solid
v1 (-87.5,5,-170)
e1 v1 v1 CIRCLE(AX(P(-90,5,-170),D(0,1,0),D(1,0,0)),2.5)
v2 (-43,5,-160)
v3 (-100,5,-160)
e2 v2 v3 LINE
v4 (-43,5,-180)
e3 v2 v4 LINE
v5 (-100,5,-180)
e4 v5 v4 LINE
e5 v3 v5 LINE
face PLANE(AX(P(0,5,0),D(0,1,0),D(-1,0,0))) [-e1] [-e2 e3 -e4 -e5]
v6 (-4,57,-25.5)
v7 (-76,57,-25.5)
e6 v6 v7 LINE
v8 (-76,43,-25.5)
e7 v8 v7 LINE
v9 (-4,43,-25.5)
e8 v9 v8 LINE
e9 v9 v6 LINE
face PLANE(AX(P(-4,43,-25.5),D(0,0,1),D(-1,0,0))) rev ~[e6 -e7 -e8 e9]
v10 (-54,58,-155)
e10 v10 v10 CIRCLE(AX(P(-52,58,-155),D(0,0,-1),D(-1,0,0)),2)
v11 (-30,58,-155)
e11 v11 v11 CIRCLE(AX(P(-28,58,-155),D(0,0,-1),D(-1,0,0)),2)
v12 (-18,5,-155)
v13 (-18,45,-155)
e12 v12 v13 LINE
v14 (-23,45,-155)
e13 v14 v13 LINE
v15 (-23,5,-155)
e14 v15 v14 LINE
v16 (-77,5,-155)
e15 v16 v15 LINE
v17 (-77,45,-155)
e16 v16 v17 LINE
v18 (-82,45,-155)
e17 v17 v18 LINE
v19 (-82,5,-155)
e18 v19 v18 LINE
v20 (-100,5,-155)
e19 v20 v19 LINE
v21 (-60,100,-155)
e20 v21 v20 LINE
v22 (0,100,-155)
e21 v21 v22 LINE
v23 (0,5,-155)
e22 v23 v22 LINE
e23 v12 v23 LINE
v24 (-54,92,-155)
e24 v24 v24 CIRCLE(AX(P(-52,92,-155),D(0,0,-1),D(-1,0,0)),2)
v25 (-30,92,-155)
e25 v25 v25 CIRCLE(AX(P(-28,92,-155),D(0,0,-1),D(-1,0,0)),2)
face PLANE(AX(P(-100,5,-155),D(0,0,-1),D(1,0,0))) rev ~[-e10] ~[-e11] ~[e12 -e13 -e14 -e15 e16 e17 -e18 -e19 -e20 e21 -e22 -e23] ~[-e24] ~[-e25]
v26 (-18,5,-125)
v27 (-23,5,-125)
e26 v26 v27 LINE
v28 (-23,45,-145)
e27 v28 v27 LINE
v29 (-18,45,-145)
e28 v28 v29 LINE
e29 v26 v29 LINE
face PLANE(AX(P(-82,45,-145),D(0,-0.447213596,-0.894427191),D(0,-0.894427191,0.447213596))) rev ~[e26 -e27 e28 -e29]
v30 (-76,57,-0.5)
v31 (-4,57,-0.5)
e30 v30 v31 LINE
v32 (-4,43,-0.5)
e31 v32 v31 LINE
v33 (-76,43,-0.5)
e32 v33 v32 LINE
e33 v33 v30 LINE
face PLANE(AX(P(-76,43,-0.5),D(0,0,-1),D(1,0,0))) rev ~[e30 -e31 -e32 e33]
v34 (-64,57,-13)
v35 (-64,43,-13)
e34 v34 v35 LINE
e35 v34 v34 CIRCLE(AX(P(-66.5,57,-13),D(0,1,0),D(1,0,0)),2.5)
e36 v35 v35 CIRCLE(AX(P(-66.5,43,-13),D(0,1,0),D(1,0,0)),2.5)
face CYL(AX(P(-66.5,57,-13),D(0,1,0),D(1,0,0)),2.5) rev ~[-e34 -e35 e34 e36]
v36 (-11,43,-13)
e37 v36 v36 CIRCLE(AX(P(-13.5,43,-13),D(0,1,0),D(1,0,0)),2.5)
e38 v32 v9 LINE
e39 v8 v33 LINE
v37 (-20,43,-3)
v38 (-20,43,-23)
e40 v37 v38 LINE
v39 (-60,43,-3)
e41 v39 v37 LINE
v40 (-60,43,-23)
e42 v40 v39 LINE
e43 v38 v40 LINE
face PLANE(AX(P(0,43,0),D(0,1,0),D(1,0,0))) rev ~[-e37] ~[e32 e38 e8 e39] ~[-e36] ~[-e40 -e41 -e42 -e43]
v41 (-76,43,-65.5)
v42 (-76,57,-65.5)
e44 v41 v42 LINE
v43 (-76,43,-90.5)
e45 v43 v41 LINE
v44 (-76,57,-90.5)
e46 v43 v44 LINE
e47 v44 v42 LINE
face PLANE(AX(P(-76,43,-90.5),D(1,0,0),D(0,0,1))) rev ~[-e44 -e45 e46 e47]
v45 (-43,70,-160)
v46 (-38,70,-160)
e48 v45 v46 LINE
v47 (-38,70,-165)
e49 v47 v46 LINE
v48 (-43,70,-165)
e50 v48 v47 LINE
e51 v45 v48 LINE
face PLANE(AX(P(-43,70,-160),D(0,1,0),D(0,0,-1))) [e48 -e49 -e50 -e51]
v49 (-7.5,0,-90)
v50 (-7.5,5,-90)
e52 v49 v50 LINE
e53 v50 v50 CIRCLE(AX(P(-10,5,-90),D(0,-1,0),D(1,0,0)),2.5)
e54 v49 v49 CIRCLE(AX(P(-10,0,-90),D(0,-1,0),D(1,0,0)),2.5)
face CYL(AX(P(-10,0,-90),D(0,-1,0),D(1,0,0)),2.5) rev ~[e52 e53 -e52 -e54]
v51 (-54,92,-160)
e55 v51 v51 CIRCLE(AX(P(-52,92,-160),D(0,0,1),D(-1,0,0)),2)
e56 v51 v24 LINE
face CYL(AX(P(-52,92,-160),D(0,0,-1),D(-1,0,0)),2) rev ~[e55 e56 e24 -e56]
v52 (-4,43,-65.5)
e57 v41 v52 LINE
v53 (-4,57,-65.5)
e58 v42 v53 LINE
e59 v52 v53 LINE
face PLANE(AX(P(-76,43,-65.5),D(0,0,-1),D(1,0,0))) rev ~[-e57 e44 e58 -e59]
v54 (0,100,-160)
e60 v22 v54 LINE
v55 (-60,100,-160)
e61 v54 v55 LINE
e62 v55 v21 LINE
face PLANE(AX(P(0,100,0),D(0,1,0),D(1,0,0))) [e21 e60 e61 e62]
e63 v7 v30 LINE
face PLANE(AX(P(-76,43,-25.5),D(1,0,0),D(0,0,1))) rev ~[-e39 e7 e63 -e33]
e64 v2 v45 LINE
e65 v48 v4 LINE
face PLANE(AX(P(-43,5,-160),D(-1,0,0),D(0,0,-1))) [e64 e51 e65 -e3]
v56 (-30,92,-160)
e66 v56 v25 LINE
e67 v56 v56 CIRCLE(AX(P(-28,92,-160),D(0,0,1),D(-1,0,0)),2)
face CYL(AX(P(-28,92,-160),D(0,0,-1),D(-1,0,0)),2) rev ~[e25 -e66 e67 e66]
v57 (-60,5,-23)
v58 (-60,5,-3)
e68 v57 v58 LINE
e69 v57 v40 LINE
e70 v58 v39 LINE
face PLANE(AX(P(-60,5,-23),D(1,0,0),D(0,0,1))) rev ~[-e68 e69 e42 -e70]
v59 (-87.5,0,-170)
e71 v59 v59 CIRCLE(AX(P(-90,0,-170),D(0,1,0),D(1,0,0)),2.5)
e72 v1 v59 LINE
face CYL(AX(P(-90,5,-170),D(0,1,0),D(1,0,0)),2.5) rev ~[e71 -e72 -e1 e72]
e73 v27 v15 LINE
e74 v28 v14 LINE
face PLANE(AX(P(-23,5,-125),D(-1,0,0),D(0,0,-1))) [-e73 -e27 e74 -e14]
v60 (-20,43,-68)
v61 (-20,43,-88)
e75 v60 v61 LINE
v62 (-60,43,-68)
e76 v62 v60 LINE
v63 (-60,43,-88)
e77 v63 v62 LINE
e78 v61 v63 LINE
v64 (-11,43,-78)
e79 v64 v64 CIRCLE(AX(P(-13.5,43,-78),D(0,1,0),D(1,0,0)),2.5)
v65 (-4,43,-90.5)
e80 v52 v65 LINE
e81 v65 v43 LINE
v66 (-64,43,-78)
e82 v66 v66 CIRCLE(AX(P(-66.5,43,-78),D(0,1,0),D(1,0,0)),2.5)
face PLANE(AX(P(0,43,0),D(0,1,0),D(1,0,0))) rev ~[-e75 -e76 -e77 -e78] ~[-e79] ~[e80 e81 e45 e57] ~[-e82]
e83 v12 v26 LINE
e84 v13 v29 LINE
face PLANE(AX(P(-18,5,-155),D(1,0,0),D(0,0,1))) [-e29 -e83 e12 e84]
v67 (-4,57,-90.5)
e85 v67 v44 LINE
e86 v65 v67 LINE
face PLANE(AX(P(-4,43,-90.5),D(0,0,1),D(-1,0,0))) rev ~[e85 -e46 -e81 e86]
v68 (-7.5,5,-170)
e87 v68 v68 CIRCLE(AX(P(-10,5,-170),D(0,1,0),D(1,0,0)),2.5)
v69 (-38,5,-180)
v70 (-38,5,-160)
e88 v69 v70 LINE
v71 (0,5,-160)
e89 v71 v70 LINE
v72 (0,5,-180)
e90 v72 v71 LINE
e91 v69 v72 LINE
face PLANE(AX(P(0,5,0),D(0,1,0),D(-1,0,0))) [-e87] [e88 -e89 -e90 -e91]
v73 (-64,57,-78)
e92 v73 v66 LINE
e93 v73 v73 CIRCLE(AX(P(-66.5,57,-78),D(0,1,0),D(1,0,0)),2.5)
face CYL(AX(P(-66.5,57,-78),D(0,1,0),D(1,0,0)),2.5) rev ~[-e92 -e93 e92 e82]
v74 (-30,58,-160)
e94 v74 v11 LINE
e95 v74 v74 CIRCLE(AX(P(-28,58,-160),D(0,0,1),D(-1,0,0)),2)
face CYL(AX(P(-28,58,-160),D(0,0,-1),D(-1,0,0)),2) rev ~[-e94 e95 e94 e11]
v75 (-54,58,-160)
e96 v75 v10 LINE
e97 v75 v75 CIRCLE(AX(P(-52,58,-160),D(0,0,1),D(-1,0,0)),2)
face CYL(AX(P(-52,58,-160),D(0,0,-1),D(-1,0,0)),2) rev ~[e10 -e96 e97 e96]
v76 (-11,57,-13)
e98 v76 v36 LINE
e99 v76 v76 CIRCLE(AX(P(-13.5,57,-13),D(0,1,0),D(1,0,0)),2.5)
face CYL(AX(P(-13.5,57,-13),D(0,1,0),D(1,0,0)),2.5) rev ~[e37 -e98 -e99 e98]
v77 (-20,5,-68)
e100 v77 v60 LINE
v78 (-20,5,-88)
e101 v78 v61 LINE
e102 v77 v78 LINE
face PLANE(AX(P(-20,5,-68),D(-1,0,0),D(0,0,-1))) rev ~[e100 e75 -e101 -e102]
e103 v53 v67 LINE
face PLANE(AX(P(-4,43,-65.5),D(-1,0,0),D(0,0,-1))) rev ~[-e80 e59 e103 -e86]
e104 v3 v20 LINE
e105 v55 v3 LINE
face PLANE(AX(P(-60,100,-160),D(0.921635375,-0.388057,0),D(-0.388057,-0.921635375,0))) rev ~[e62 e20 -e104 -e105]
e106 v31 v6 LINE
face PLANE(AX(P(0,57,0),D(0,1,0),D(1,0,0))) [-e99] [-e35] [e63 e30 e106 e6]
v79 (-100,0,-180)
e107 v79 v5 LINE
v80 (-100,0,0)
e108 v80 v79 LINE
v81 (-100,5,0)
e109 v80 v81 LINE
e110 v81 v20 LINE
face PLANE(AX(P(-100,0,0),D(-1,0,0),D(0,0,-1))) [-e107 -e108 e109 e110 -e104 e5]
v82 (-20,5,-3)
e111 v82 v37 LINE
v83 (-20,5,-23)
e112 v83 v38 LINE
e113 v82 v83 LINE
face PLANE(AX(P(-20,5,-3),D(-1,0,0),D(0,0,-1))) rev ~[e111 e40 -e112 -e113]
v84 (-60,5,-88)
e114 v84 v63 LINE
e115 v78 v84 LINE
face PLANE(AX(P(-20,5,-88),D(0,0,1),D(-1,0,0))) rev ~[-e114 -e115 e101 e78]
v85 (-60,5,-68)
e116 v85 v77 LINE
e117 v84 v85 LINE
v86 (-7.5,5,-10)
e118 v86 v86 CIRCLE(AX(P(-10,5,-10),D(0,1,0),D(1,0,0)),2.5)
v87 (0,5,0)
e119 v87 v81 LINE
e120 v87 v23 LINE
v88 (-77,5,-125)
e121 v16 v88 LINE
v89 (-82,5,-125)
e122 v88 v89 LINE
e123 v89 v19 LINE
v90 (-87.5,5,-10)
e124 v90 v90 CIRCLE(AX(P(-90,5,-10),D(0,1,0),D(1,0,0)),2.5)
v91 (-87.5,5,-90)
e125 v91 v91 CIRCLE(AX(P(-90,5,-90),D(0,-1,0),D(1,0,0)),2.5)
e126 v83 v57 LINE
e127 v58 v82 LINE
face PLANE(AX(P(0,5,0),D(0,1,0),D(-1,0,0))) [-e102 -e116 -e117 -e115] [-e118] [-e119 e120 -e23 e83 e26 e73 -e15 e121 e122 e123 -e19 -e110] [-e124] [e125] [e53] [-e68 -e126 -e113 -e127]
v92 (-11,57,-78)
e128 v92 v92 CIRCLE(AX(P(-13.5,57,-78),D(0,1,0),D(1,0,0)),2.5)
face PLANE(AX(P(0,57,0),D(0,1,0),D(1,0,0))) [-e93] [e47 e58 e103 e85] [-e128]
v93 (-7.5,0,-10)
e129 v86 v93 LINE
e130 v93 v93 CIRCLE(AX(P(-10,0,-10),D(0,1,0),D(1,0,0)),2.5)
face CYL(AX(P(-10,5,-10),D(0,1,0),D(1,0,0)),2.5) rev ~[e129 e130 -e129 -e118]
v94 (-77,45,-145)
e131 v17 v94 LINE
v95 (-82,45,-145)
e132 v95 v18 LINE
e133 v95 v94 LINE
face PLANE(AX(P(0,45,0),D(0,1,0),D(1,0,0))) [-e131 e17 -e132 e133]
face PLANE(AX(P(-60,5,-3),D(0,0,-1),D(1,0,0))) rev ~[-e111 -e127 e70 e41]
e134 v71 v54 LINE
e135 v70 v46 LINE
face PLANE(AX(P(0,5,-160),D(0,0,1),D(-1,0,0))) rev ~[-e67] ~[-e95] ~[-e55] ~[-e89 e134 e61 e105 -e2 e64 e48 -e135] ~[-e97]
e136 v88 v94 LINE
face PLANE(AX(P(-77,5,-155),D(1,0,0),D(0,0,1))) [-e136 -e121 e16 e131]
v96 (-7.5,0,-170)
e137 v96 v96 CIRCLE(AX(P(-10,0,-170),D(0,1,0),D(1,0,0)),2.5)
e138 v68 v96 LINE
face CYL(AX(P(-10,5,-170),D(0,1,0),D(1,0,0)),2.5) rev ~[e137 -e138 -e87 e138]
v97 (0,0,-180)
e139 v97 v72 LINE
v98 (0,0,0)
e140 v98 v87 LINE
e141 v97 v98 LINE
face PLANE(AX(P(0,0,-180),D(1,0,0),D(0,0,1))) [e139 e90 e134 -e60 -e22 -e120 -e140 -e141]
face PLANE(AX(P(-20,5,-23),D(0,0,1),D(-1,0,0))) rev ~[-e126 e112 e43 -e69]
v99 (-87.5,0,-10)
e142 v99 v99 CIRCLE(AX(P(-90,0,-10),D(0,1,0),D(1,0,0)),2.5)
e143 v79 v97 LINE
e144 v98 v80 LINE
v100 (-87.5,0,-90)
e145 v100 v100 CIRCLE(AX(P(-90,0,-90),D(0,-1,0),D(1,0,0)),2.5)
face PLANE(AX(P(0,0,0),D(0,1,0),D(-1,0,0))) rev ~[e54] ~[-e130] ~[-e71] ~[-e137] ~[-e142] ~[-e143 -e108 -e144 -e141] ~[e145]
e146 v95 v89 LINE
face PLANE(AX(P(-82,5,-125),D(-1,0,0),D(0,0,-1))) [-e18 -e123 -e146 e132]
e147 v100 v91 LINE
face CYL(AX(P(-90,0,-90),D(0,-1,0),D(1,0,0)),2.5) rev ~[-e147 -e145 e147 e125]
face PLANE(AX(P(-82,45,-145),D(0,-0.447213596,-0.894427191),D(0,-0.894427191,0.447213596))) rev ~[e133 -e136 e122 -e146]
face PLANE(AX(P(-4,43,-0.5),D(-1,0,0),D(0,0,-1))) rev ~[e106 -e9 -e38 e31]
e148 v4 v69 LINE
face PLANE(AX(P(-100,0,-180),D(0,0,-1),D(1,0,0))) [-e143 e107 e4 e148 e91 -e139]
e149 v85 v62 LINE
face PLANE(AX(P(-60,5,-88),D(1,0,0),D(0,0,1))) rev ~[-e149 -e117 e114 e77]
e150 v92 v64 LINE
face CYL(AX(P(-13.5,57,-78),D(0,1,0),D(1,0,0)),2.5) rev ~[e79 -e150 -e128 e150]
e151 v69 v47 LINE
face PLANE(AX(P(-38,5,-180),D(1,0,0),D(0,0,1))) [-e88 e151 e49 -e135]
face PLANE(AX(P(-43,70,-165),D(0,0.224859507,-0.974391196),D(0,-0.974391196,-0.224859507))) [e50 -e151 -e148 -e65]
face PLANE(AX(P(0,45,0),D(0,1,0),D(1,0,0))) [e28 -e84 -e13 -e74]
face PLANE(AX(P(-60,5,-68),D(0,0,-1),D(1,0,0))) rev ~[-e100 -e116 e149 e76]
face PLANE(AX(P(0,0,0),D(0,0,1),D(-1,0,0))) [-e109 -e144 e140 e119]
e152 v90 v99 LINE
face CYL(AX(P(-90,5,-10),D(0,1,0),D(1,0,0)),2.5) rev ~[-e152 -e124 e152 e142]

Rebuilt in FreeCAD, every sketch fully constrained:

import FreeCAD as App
import Part
import Sketcher
from FreeCAD import Vector

doc = App.newDocument("Part")
body = doc.addObject("PartDesign::Body", "Body")

# Sketch on XZ plane
sketch1 = body.newObject("Sketcher::SketchObject", "Sketch")
sketch1.AttachmentSupport = (doc.getObject("XZ_Plane"), [""])
sketch1.MapMode = "FlatFace"
sketch1.addGeometry(Part.LineSegment(Vector(-100, 0, 0), Vector(0, 0, 0)), False)
sketch1.addGeometry(Part.LineSegment(Vector(0, 0, 0), Vector(0, -180, 0)), False)
sketch1.addGeometry(Part.LineSegment(Vector(0, -180, 0), Vector(-100, -180, 0)), False)
sketch1.addGeometry(Part.LineSegment(Vector(-100, -180, 0), Vector(-100, 0, 0)), False)
sketch1.addConstraint(Sketcher.Constraint("Coincident", 0, 2, 1, 1))
sketch1.addConstraint(Sketcher.Constraint("Coincident", 1, 2, 2, 1))
sketch1.addConstraint(Sketcher.Constraint("Coincident", 2, 2, 3, 1))
sketch1.addConstraint(Sketcher.Constraint("Coincident", 3, 2, 0, 1))
sketch1.addConstraint(Sketcher.Constraint("Horizontal", 0))
sketch1.addConstraint(Sketcher.Constraint("Vertical", 1))
sketch1.addConstraint(Sketcher.Constraint("Horizontal", 2))
sketch1.addConstraint(Sketcher.Constraint("Vertical", 3))
sketch1.addConstraint(Sketcher.Constraint("Coincident", 0, 2, -1, 1))
sketch1.addConstraint(Sketcher.Constraint("DistanceX", 0, 1, 0, 2, 100.0))
sketch1.addConstraint(Sketcher.Constraint("DistanceY", 1, 2, 1, 1, 180.0))
pad1 = body.newObject("PartDesign::Pad", "Pad")
pad1.Profile = sketch1
pad1.Length = 5
pad1.Reversed = True

# Sketch on XZ plane
sketch2 = body.newObject("Sketcher::SketchObject", "Sketch001")
sketch2.AttachmentSupport = (doc.getObject("XZ_Plane"), [""])
sketch2.MapMode = "FlatFace"
sketch2.AttachmentOffset = App.Placement(Vector(0, 0, -5), App.Rotation())
sketch2.addGeometry(Part.LineSegment(Vector(0, -155, 0), Vector(0, -160, 0)), False)
sketch2.addGeometry(Part.LineSegment(Vector(0, -160, 0), Vector(-100, -160, 0)), False)
sketch2.addGeometry(Part.LineSegment(Vector(-100, -160, 0), Vector(-100, -155, 0)), False)
sketch2.addGeometry(Part.LineSegment(Vector(-100, -155, 0), Vector(0, -155, 0)), False)
sketch2.addConstraint(Sketcher.Constraint("Coincident", 0, 2, 1, 1))
sketch2.addConstraint(Sketcher.Constraint("Coincident", 1, 2, 2, 1))
sketch2.addConstraint(Sketcher.Constraint("Coincident", 2, 2, 3, 1))
sketch2.addConstraint(Sketcher.Constraint("Coincident", 3, 2, 0, 1))
sketch2.addConstraint(Sketcher.Constraint("Vertical", 0))
sketch2.addConstraint(Sketcher.Constraint("Horizontal", 1))
sketch2.addConstraint(Sketcher.Constraint("Vertical", 2))
sketch2.addConstraint(Sketcher.Constraint("Horizontal", 3))
sketch2.addConstraint(Sketcher.Constraint("PointOnObject", 0, 2, -2))
sketch2.addConstraint(Sketcher.Constraint("DistanceX", 1, 2, 1, 1, 100.0))
sketch2.addConstraint(Sketcher.Constraint("DistanceY", 0, 2, 0, 1, 5.0))
sketch2.addConstraint(Sketcher.Constraint("DistanceY", 0, 2, -1, 1, 160.0))
pad2 = body.newObject("PartDesign::Pad", "Pad001")
pad2.Profile = sketch2
pad2.Length = 95
pad2.Reversed = True

# Sketch on XY plane
sketch3 = body.newObject("Sketcher::SketchObject", "Sketch002")
sketch3.AttachmentSupport = (doc.getObject("XY_Plane"), [""])
sketch3.MapMode = "FlatFace"
sketch3.AttachmentOffset = App.Placement(Vector(0, 0, -160), App.Rotation())
sketch3.addGeometry(Part.Circle(Vector(-28, 92, 0), Vector(0, 0, 1), 2), False)
sketch3.addGeometry(Part.Circle(Vector(-52, 92, 0), Vector(0, 0, 1), 2), False)
sketch3.addGeometry(Part.Circle(Vector(-28, 58, 0), Vector(0, 0, 1), 2), False)
sketch3.addGeometry(Part.Circle(Vector(-52, 58, 0), Vector(0, 0, 1), 2), False)
sketch3.addConstraint(Sketcher.Constraint("Equal", 0, 1))
sketch3.addConstraint(Sketcher.Constraint("Equal", 1, 2))
sketch3.addConstraint(Sketcher.Constraint("Equal", 2, 3))
sketch3.addConstraint(Sketcher.Constraint("Horizontal", 0, 3, 1, 3))
sketch3.addConstraint(Sketcher.Constraint("Horizontal", 2, 3, 3, 3))
sketch3.addConstraint(Sketcher.Constraint("Vertical", 0, 3, 2, 3))
sketch3.addConstraint(Sketcher.Constraint("Vertical", 1, 3, 3, 3))
sketch3.addConstraint(Sketcher.Constraint("Diameter", 0, 4.0))
sketch3.addConstraint(Sketcher.Constraint("DistanceX", 1, 3, 0, 3, 24.0))
sketch3.addConstraint(Sketcher.Constraint("DistanceY", 2, 3, 0, 3, 34.0))
sketch3.addConstraint(Sketcher.Constraint("DistanceX", 0, 3, -1, 1, 28.0))
sketch3.addConstraint(Sketcher.Constraint("DistanceY", -1, 1, 0, 3, 92.0))
pocket1 = body.newObject("PartDesign::Pocket", "Pocket")
pocket1.Profile = sketch3
pocket1.Length = 95
pocket1.Reversed = True

# Sketch on XY plane
sketch4 = body.newObject("Sketcher::SketchObject", "Sketch003")
sketch4.AttachmentSupport = (doc.getObject("XY_Plane"), [""])
sketch4.MapMode = "FlatFace"
sketch4.AttachmentOffset = App.Placement(Vector(0, 0, -160), App.Rotation())
sketch4.addGeometry(Part.LineSegment(Vector(-100, 100, 0), Vector(-60, 100, 0)), False)
sketch4.addGeometry(Part.LineSegment(Vector(-60, 100, 0), Vector(-100, 5, 0)), False)
sketch4.addGeometry(Part.LineSegment(Vector(-100, 5, 0), Vector(-100, 100, 0)), False)
sketch4.addConstraint(Sketcher.Constraint("Coincident", 0, 2, 1, 1))
sketch4.addConstraint(Sketcher.Constraint("Coincident", 1, 2, 2, 1))
sketch4.addConstraint(Sketcher.Constraint("Coincident", 2, 2, 0, 1))
sketch4.addConstraint(Sketcher.Constraint("Horizontal", 0))
sketch4.addConstraint(Sketcher.Constraint("Vertical", 2))
sketch4.addConstraint(Sketcher.Constraint("DistanceX", 0, 1, 0, 2, 40.0))
sketch4.addConstraint(Sketcher.Constraint("DistanceY", 2, 1, 2, 2, 95.0))
sketch4.addConstraint(Sketcher.Constraint("DistanceX", 0, 2, -1, 1, 60.0))
sketch4.addConstraint(Sketcher.Constraint("DistanceY", -1, 1, 0, 2, 100.0))
pocket2 = body.newObject("PartDesign::Pocket", "Pocket001")
pocket2.Profile = sketch4
pocket2.Length = 14
pocket2.Reversed = True

# Sketch on XZ plane
sketch5 = body.newObject("Sketcher::SketchObject", "Sketch004")
sketch5.AttachmentSupport = (doc.getObject("XZ_Plane"), [""])
sketch5.MapMode = "FlatFace"
sketch5.AttachmentOffset = App.Placement(Vector(0, 0, -5), App.Rotation())
sketch5.addGeometry(Part.LineSegment(Vector(-20, -3, 0), Vector(-20, -23, 0)), False)
sketch5.addGeometry(Part.LineSegment(Vector(-20, -23, 0), Vector(-60, -23, 0)), False)
sketch5.addGeometry(Part.LineSegment(Vector(-60, -23, 0), Vector(-60, -3, 0)), False)
sketch5.addGeometry(Part.LineSegment(Vector(-60, -3, 0), Vector(-20, -3, 0)), False)
sketch5.addGeometry(Part.LineSegment(Vector(-20, -68, 0), Vector(-20, -88, 0)), False)
sketch5.addGeometry(Part.LineSegment(Vector(-20, -88, 0), Vector(-60, -88, 0)), False)
sketch5.addGeometry(Part.LineSegment(Vector(-60, -88, 0), Vector(-60, -68, 0)), False)
sketch5.addGeometry(Part.LineSegment(Vector(-60, -68, 0), Vector(-20, -68, 0)), False)
sketch5.addConstraint(Sketcher.Constraint("Coincident", 0, 2, 1, 1))
sketch5.addConstraint(Sketcher.Constraint("Coincident", 1, 2, 2, 1))
sketch5.addConstraint(Sketcher.Constraint("Coincident", 2, 2, 3, 1))
sketch5.addConstraint(Sketcher.Constraint("Coincident", 3, 2, 0, 1))
sketch5.addConstraint(Sketcher.Constraint("Coincident", 4, 2, 5, 1))
sketch5.addConstraint(Sketcher.Constraint("Coincident", 5, 2, 6, 1))
sketch5.addConstraint(Sketcher.Constraint("Coincident", 6, 2, 7, 1))
sketch5.addConstraint(Sketcher.Constraint("Coincident", 7, 2, 4, 1))
sketch5.addConstraint(Sketcher.Constraint("Vertical", 0))
sketch5.addConstraint(Sketcher.Constraint("Horizontal", 1))
sketch5.addConstraint(Sketcher.Constraint("Vertical", 2))
sketch5.addConstraint(Sketcher.Constraint("Horizontal", 3))
sketch5.addConstraint(Sketcher.Constraint("Vertical", 4))
sketch5.addConstraint(Sketcher.Constraint("Horizontal", 5))
sketch5.addConstraint(Sketcher.Constraint("Vertical", 6))
sketch5.addConstraint(Sketcher.Constraint("Horizontal", 7))
sketch5.addConstraint(Sketcher.Constraint("Vertical", 3, 2, 4, 2))
sketch5.addConstraint(Sketcher.Constraint("Vertical", 2, 2, 5, 2))
sketch5.addConstraint(Sketcher.Constraint("Equal", 2, 4))
sketch5.addConstraint(Sketcher.Constraint("DistanceX", 1, 2, 1, 1, 40.0))
sketch5.addConstraint(Sketcher.Constraint("DistanceY", 0, 2, 0, 1, 20.0))
sketch5.addConstraint(Sketcher.Constraint("DistanceX", 0, 2, -1, 1, 20.0))
sketch5.addConstraint(Sketcher.Constraint("DistanceY", 2, 2, -1, 1, 3.0))
sketch5.addConstraint(Sketcher.Constraint("DistanceY", 6, 2, 1, 2, 45.0))
pad3 = body.newObject("PartDesign::Pad", "Pad002")
pad3.Profile = sketch5
pad3.Length = 38
pad3.Reversed = True

# Sketch on XZ plane
sketch6 = body.newObject("Sketcher::SketchObject", "Sketch005")
sketch6.AttachmentSupport = (doc.getObject("XZ_Plane"), [""])
sketch6.MapMode = "FlatFace"
sketch6.AttachmentOffset = App.Placement(Vector(0, 0, -43), App.Rotation())
sketch6.addGeometry(Part.LineSegment(Vector(-4, -66, 0), Vector(-4, -90, 0)), False)
sketch6.addGeometry(Part.LineSegment(Vector(-4, -90, 0), Vector(-76, -90, 0)), False)
sketch6.addGeometry(Part.LineSegment(Vector(-76, -90, 0), Vector(-76, -66, 0)), False)
sketch6.addGeometry(Part.LineSegment(Vector(-76, -66, 0), Vector(-4, -66, 0)), False)
sketch6.addGeometry(Part.LineSegment(Vector(-4, 0, 0), Vector(-4, -26, 0)), False)
sketch6.addGeometry(Part.LineSegment(Vector(-4, -26, 0), Vector(-76, -26, 0)), False)
sketch6.addGeometry(Part.LineSegment(Vector(-76, -26, 0), Vector(-76, 0, 0)), False)
sketch6.addGeometry(Part.LineSegment(Vector(-76, 0, 0), Vector(-4, 0, 0)), False)
sketch6.addConstraint(Sketcher.Constraint("Coincident", 0, 2, 1, 1))
sketch6.addConstraint(Sketcher.Constraint("Coincident", 1, 2, 2, 1))
sketch6.addConstraint(Sketcher.Constraint("Coincident", 2, 2, 3, 1))
sketch6.addConstraint(Sketcher.Constraint("Coincident", 3, 2, 0, 1))
sketch6.addConstraint(Sketcher.Constraint("Coincident", 4, 2, 5, 1))
sketch6.addConstraint(Sketcher.Constraint("Coincident", 5, 2, 6, 1))
sketch6.addConstraint(Sketcher.Constraint("Coincident", 6, 2, 7, 1))
sketch6.addConstraint(Sketcher.Constraint("Coincident", 7, 2, 4, 1))
sketch6.addConstraint(Sketcher.Constraint("Vertical", 0))
sketch6.addConstraint(Sketcher.Constraint("Horizontal", 1))
sketch6.addConstraint(Sketcher.Constraint("Vertical", 2))
sketch6.addConstraint(Sketcher.Constraint("Horizontal", 3))
sketch6.addConstraint(Sketcher.Constraint("Vertical", 4))
sketch6.addConstraint(Sketcher.Constraint("Horizontal", 5))
sketch6.addConstraint(Sketcher.Constraint("Vertical", 6))
sketch6.addConstraint(Sketcher.Constraint("Horizontal", 7))
sketch6.addConstraint(Sketcher.Constraint("Vertical", 3, 2, 4, 2))
sketch6.addConstraint(Sketcher.Constraint("Vertical", 2, 2, 5, 2))
sketch6.addConstraint(Sketcher.Constraint("Equal", 2, 4))
sketch6.addConstraint(Sketcher.Constraint("DistanceX", 1, 2, 1, 1, 72.0))
sketch6.addConstraint(Sketcher.Constraint("DistanceY", 0, 2, 0, 1, 25.0))
sketch6.addConstraint(Sketcher.Constraint("DistanceX", 0, 2, -1, 1, 4.0))
sketch6.addConstraint(Sketcher.Constraint("DistanceY", 3, 2, 4, 2, 40.0))
sketch6.addConstraint(Sketcher.Constraint("DistanceY", 0, 2, -1, 1, 90.5))
pad4 = body.newObject("PartDesign::Pad", "Pad003")
pad4.Profile = sketch6
pad4.Length = 14
pad4.Reversed = True

# Sketch on XZ plane
sketch7 = body.newObject("Sketcher::SketchObject", "Sketch006")
sketch7.AttachmentSupport = (doc.getObject("XZ_Plane"), [""])
sketch7.MapMode = "FlatFace"
sketch7.AttachmentOffset = App.Placement(Vector(0, 0, -5), App.Rotation())
sketch7.addGeometry(Part.LineSegment(Vector(-38, -160, 0), Vector(-38, -180, 0)), False)
sketch7.addGeometry(Part.LineSegment(Vector(-38, -180, 0), Vector(-43, -180, 0)), False)
sketch7.addGeometry(Part.LineSegment(Vector(-43, -180, 0), Vector(-43, -160, 0)), False)
sketch7.addGeometry(Part.LineSegment(Vector(-43, -160, 0), Vector(-38, -160, 0)), False)
sketch7.addConstraint(Sketcher.Constraint("Coincident", 0, 2, 1, 1))
sketch7.addConstraint(Sketcher.Constraint("Coincident", 1, 2, 2, 1))
sketch7.addConstraint(Sketcher.Constraint("Coincident", 2, 2, 3, 1))
sketch7.addConstraint(Sketcher.Constraint("Coincident", 3, 2, 0, 1))
sketch7.addConstraint(Sketcher.Constraint("Vertical", 0))
sketch7.addConstraint(Sketcher.Constraint("Horizontal", 1))
sketch7.addConstraint(Sketcher.Constraint("Vertical", 2))
sketch7.addConstraint(Sketcher.Constraint("Horizontal", 3))
sketch7.addConstraint(Sketcher.Constraint("DistanceX", 1, 2, 1, 1, 5.0))
sketch7.addConstraint(Sketcher.Constraint("DistanceY", 0, 2, 0, 1, 20.0))
sketch7.addConstraint(Sketcher.Constraint("DistanceX", 0, 2, -1, 1, 38.0))
sketch7.addConstraint(Sketcher.Constraint("DistanceY", 0, 2, -1, 1, 180.0))
pad5 = body.newObject("PartDesign::Pad", "Pad004")
pad5.Profile = sketch7
pad5.Length = 95
pad5.Reversed = True

# Sketch on XZ plane
sketch8 = body.newObject("Sketcher::SketchObject", "Sketch007")
sketch8.AttachmentSupport = (doc.getObject("XZ_Plane"), [""])
sketch8.MapMode = "FlatFace"
sketch8.AttachmentOffset = App.Placement(Vector(0, 0, -5), App.Rotation())
sketch8.addGeometry(Part.LineSegment(Vector(-77, -125, 0), Vector(-77, -155, 0)), False)
sketch8.addGeometry(Part.LineSegment(Vector(-77, -155, 0), Vector(-82, -155, 0)), False)
sketch8.addGeometry(Part.LineSegment(Vector(-82, -155, 0), Vector(-82, -125, 0)), False)
sketch8.addGeometry(Part.LineSegment(Vector(-82, -125, 0), Vector(-77, -125, 0)), False)
sketch8.addGeometry(Part.LineSegment(Vector(-18, -155, 0), Vector(-23, -155, 0)), False)
sketch8.addGeometry(Part.LineSegment(Vector(-23, -155, 0), Vector(-23, -125, 0)), False)
sketch8.addGeometry(Part.LineSegment(Vector(-23, -125, 0), Vector(-18, -125, 0)), False)
sketch8.addGeometry(Part.LineSegment(Vector(-18, -125, 0), Vector(-18, -155, 0)), False)
sketch8.addConstraint(Sketcher.Constraint("Coincident", 0, 2, 1, 1))
sketch8.addConstraint(Sketcher.Constraint("Coincident", 1, 2, 2, 1))
sketch8.addConstraint(Sketcher.Constraint("Coincident", 2, 2, 3, 1))
sketch8.addConstraint(Sketcher.Constraint("Coincident", 3, 2, 0, 1))
sketch8.addConstraint(Sketcher.Constraint("Coincident", 4, 2, 5, 1))
sketch8.addConstraint(Sketcher.Constraint("Coincident", 5, 2, 6, 1))
sketch8.addConstraint(Sketcher.Constraint("Coincident", 6, 2, 7, 1))
sketch8.addConstraint(Sketcher.Constraint("Coincident", 7, 2, 4, 1))
sketch8.addConstraint(Sketcher.Constraint("Vertical", 0))
sketch8.addConstraint(Sketcher.Constraint("Horizontal", 1))
sketch8.addConstraint(Sketcher.Constraint("Vertical", 2))
sketch8.addConstraint(Sketcher.Constraint("Horizontal", 3))
sketch8.addConstraint(Sketcher.Constraint("Horizontal", 4))
sketch8.addConstraint(Sketcher.Constraint("Vertical", 5))
sketch8.addConstraint(Sketcher.Constraint("Horizontal", 6))
sketch8.addConstraint(Sketcher.Constraint("Vertical", 7))
sketch8.addConstraint(Sketcher.Constraint("Horizontal", 1, 2, 4, 2))
sketch8.addConstraint(Sketcher.Constraint("Horizontal", 3, 2, 5, 2))
sketch8.addConstraint(Sketcher.Constraint("Equal", 3, 4))
sketch8.addConstraint(Sketcher.Constraint("DistanceX", 1, 2, 1, 1, 5.0))
sketch8.addConstraint(Sketcher.Constraint("DistanceY", 0, 2, 0, 1, 30.0))
sketch8.addConstraint(Sketcher.Constraint("DistanceX", 6, 2, -1, 1, 18.0))
sketch8.addConstraint(Sketcher.Constraint("DistanceX", 0, 2, -1, 1, 77.0))
sketch8.addConstraint(Sketcher.Constraint("DistanceY", 0, 2, -1, 1, 155.0))
pad6 = body.newObject("PartDesign::Pad", "Pad005")
pad6.Profile = sketch8
pad6.Length = 40
pad6.Reversed = True

# Sketch on YZ plane
sketch9 = body.newObject("Sketcher::SketchObject", "Sketch008")
sketch9.AttachmentSupport = (doc.getObject("YZ_Plane"), [""])
sketch9.MapMode = "FlatFace"
sketch9.AttachmentOffset = App.Placement(Vector(0, 0, -43), App.Rotation())
sketch9.addGeometry(Part.LineSegment(Vector(70, -165, 0), Vector(70, -160, 0)), False)
sketch9.addGeometry(Part.LineSegment(Vector(70, -160, 0), Vector(100, -160, 0)), False)
sketch9.addGeometry(Part.LineSegment(Vector(100, -160, 0), Vector(100, -180, 0)), False)
sketch9.addGeometry(Part.LineSegment(Vector(100, -180, 0), Vector(5, -180, 0)), False)
sketch9.addGeometry(Part.LineSegment(Vector(5, -180, 0), Vector(70, -165, 0)), False)
sketch9.addConstraint(Sketcher.Constraint("Coincident", 0, 2, 1, 1))
sketch9.addConstraint(Sketcher.Constraint("Coincident", 1, 2, 2, 1))
sketch9.addConstraint(Sketcher.Constraint("Coincident", 2, 2, 3, 1))
sketch9.addConstraint(Sketcher.Constraint("Coincident", 3, 2, 4, 1))
sketch9.addConstraint(Sketcher.Constraint("Coincident", 4, 2, 0, 1))
sketch9.addConstraint(Sketcher.Constraint("Vertical", 0))
sketch9.addConstraint(Sketcher.Constraint("Horizontal", 1))
sketch9.addConstraint(Sketcher.Constraint("Vertical", 2))
sketch9.addConstraint(Sketcher.Constraint("Horizontal", 3))
sketch9.addConstraint(Sketcher.Constraint("DistanceX", 1, 1, 1, 2, 30.0))
sketch9.addConstraint(Sketcher.Constraint("DistanceY", 0, 1, 0, 2, 5.0))
sketch9.addConstraint(Sketcher.Constraint("DistanceX", -1, 1, 3, 2, 5.0))
sketch9.addConstraint(Sketcher.Constraint("DistanceX", 3, 2, 3, 1, 95.0))
sketch9.addConstraint(Sketcher.Constraint("DistanceY", 2, 2, 2, 1, 20.0))
sketch9.addConstraint(Sketcher.Constraint("DistanceY", 0, 2, -1, 1, 160.0))
pocket3 = body.newObject("PartDesign::Pocket", "Pocket002")
pocket3.Profile = sketch9
pocket3.Length = 10
pocket3.Reversed = True

# Sketch on XZ plane
sketch10 = body.newObject("Sketcher::SketchObject", "Sketch009")
sketch10.AttachmentSupport = (doc.getObject("XZ_Plane"), [""])
sketch10.MapMode = "FlatFace"
sketch10.AttachmentOffset = App.Placement(Vector(0, 0, -5), App.Rotation())
sketch10.addGeometry(Part.Circle(Vector(-90, -10, 0), Vector(0, 0, 1), 2.5), False)
sketch10.addGeometry(Part.Circle(Vector(-10, -10, 0), Vector(0, 0, 1), 2.5), False)
sketch10.addGeometry(Part.Circle(Vector(-90, -170, 0), Vector(0, 0, 1), 2.5), False)
sketch10.addGeometry(Part.Circle(Vector(-10, -170, 0), Vector(0, 0, 1), 2.5), False)
sketch10.addGeometry(Part.Circle(Vector(-50, -50, 0), Vector(0, 0, 1), 2.5), False)
sketch10.addGeometry(Part.Circle(Vector(-50, -130, 0), Vector(0, 0, 1), 2.5), False)
sketch10.addConstraint(Sketcher.Constraint("Equal", 0, 1))
sketch10.addConstraint(Sketcher.Constraint("Equal", 1, 2))
sketch10.addConstraint(Sketcher.Constraint("Equal", 2, 3))
sketch10.addConstraint(Sketcher.Constraint("Equal", 3, 4))
sketch10.addConstraint(Sketcher.Constraint("Equal", 4, 5))
sketch10.addConstraint(Sketcher.Constraint("Horizontal", 0, 3, 1, 3))
sketch10.addConstraint(Sketcher.Constraint("Horizontal", 2, 3, 3, 3))
sketch10.addConstraint(Sketcher.Constraint("Vertical", 0, 3, 2, 3))
sketch10.addConstraint(Sketcher.Constraint("Vertical", 1, 3, 3, 3))
sketch10.addConstraint(Sketcher.Constraint("Vertical", 4, 3, 5, 3))
sketch10.addConstraint(Sketcher.Constraint("Diameter", 0, 5.0))
sketch10.addConstraint(Sketcher.Constraint("DistanceY", 0, 3, -1, 1, 10.0))
sketch10.addConstraint(Sketcher.Constraint("DistanceX", 1, 3, -1, 1, 10.0))
sketch10.addConstraint(Sketcher.Constraint("DistanceX", 4, 3, -1, 1, 50.0))
sketch10.addConstraint(Sketcher.Constraint("DistanceY", 4, 3, -1, 1, 50.0))
sketch10.addConstraint(Sketcher.Constraint("DistanceX", 0, 3, -1, 1, 90.0))
sketch10.addConstraint(Sketcher.Constraint("DistanceY", 2, 3, -1, 1, 170.0))
sketch10.addConstraint(Sketcher.Constraint("DistanceY", 5, 3, -1, 1, 130.0))
pocket4 = body.newObject("PartDesign::Pocket", "Pocket003")
pocket4.Profile = sketch10
pocket4.Length = 10
pocket4.Reversed = True

# Sketch on XZ plane
sketch11 = body.newObject("Sketcher::SketchObject", "Sketch010")
sketch11.AttachmentSupport = (doc.getObject("XZ_Plane"), [""])
sketch11.MapMode = "FlatFace"
sketch11.AttachmentOffset = App.Placement(Vector(0, 0, -57), App.Rotation())
sketch11.addGeometry(Part.Circle(Vector(-66.5, -78, 0), Vector(0, 0, 1), 2.5), False)
sketch11.addGeometry(Part.Circle(Vector(-13.5, -78, 0), Vector(0, 0, 1), 2.5), False)
sketch11.addGeometry(Part.Circle(Vector(-66.5, -13, 0), Vector(0, 0, 1), 2.5), False)
sketch11.addGeometry(Part.Circle(Vector(-13.5, -13, 0), Vector(0, 0, 1), 2.5), False)
sketch11.addConstraint(Sketcher.Constraint("Equal", 0, 1))
sketch11.addConstraint(Sketcher.Constraint("Equal", 1, 2))
sketch11.addConstraint(Sketcher.Constraint("Equal", 2, 3))
sketch11.addConstraint(Sketcher.Constraint("Horizontal", 0, 3, 1, 3))
sketch11.addConstraint(Sketcher.Constraint("Horizontal", 2, 3, 3, 3))
sketch11.addConstraint(Sketcher.Constraint("Vertical", 0, 3, 2, 3))
sketch11.addConstraint(Sketcher.Constraint("Vertical", 1, 3, 3, 3))
sketch11.addConstraint(Sketcher.Constraint("Diameter", 0, 5.0))
sketch11.addConstraint(Sketcher.Constraint("DistanceX", 0, 3, 1, 3, 53.0))
sketch11.addConstraint(Sketcher.Constraint("DistanceY", 0, 3, -1, 1, 78.0))
sketch11.addConstraint(Sketcher.Constraint("DistanceY", 2, 3, -1, 1, 13.0))
sketch11.addConstraint(Sketcher.Constraint("DistanceX", 0, 3, -1, 1, 66.5))
pocket5 = body.newObject("PartDesign::Pocket", "Pocket004")
pocket5.Profile = sketch11
pocket5.Length = 15
pocket5.Reversed = True

# Sketch on YZ plane
sketch12 = body.newObject("Sketcher::SketchObject", "Sketch011")
sketch12.AttachmentSupport = (doc.getObject("YZ_Plane"), [""])
sketch12.MapMode = "FlatFace"
sketch12.AttachmentOffset = App.Placement(Vector(0, 0, -82), App.Rotation())
sketch12.addGeometry(Part.LineSegment(Vector(45, -125, 0), Vector(45, -145, 0)), False)
sketch12.addGeometry(Part.LineSegment(Vector(45, -145, 0), Vector(5, -125, 0)), False)
sketch12.addGeometry(Part.LineSegment(Vector(5, -125, 0), Vector(45, -125, 0)), False)
sketch12.addConstraint(Sketcher.Constraint("Coincident", 0, 2, 1, 1))
sketch12.addConstraint(Sketcher.Constraint("Coincident", 1, 2, 2, 1))
sketch12.addConstraint(Sketcher.Constraint("Coincident", 2, 2, 0, 1))
sketch12.addConstraint(Sketcher.Constraint("Vertical", 0))
sketch12.addConstraint(Sketcher.Constraint("Horizontal", 2))
sketch12.addConstraint(Sketcher.Constraint("DistanceY", 0, 2, 0, 1, 20.0))
sketch12.addConstraint(Sketcher.Constraint("DistanceX", 2, 1, 2, 2, 40.0))
sketch12.addConstraint(Sketcher.Constraint("DistanceX", -1, 1, 0, 2, 45.0))
sketch12.addConstraint(Sketcher.Constraint("DistanceY", 0, 2, -1, 1, 145.0))
pocket6 = body.newObject("PartDesign::Pocket", "Pocket005")
pocket6.Profile = sketch12
pocket6.Length = 200
pocket6.Reversed = True

# Sketch on XZ plane
sketch13 = body.newObject("Sketcher::SketchObject", "Sketch012")
sketch13.AttachmentSupport = (doc.getObject("XZ_Plane"), [""])
sketch13.MapMode = "FlatFace"
sketch13.addGeometry(Part.Circle(Vector(-90, -90, 0), Vector(0, 0, 1), 2.5), False)
sketch13.addGeometry(Part.Circle(Vector(-10, -90, 0), Vector(0, 0, 1), 2.5), False)
sketch13.addConstraint(Sketcher.Constraint("Equal", 0, 1))
sketch13.addConstraint(Sketcher.Constraint("Horizontal", 0, 3, 1, 3))
sketch13.addConstraint(Sketcher.Constraint("Diameter", 0, 5.0))
sketch13.addConstraint(Sketcher.Constraint("DistanceX", 0, 3, -1, 1, 90.0))
sketch13.addConstraint(Sketcher.Constraint("DistanceY", 0, 3, -1, 1, 90.0))
sketch13.addConstraint(Sketcher.Constraint("DistanceX", 1, 3, -1, 1, 10.0))
pocket7 = body.newObject("PartDesign::Pocket", "Pocket006")
pocket7.Profile = sketch13
pocket7.Length = 5

# Sketch on XZ plane
sketch14 = body.newObject("Sketcher::SketchObject", "Sketch013")
sketch14.AttachmentSupport = (doc.getObject("XZ_Plane"), [""])
sketch14.MapMode = "FlatFace"
sketch14.addGeometry(Part.Circle(Vector(-50, -130, 0), Vector(0, 0, 1), 2.5), False)
sketch14.addGeometry(Part.Circle(Vector(-50, -50, 0), Vector(0, 0, 1), 2.5), False)
sketch14.addConstraint(Sketcher.Constraint("Equal", 0, 1))
sketch14.addConstraint(Sketcher.Constraint("Vertical", 0, 3, 1, 3))
sketch14.addConstraint(Sketcher.Constraint("Diameter", 0, 5.0))
sketch14.addConstraint(Sketcher.Constraint("DistanceX", 0, 3, -1, 1, 50.0))
sketch14.addConstraint(Sketcher.Constraint("DistanceY", 0, 3, -1, 1, 130.0))
sketch14.addConstraint(Sketcher.Constraint("DistanceY", 1, 3, -1, 1, 50.0))
pad7 = body.newObject("PartDesign::Pad", "Pad006")
pad7.Profile = sketch14
pad7.Length = 5
pad7.Reversed = True

doc.recompute()
